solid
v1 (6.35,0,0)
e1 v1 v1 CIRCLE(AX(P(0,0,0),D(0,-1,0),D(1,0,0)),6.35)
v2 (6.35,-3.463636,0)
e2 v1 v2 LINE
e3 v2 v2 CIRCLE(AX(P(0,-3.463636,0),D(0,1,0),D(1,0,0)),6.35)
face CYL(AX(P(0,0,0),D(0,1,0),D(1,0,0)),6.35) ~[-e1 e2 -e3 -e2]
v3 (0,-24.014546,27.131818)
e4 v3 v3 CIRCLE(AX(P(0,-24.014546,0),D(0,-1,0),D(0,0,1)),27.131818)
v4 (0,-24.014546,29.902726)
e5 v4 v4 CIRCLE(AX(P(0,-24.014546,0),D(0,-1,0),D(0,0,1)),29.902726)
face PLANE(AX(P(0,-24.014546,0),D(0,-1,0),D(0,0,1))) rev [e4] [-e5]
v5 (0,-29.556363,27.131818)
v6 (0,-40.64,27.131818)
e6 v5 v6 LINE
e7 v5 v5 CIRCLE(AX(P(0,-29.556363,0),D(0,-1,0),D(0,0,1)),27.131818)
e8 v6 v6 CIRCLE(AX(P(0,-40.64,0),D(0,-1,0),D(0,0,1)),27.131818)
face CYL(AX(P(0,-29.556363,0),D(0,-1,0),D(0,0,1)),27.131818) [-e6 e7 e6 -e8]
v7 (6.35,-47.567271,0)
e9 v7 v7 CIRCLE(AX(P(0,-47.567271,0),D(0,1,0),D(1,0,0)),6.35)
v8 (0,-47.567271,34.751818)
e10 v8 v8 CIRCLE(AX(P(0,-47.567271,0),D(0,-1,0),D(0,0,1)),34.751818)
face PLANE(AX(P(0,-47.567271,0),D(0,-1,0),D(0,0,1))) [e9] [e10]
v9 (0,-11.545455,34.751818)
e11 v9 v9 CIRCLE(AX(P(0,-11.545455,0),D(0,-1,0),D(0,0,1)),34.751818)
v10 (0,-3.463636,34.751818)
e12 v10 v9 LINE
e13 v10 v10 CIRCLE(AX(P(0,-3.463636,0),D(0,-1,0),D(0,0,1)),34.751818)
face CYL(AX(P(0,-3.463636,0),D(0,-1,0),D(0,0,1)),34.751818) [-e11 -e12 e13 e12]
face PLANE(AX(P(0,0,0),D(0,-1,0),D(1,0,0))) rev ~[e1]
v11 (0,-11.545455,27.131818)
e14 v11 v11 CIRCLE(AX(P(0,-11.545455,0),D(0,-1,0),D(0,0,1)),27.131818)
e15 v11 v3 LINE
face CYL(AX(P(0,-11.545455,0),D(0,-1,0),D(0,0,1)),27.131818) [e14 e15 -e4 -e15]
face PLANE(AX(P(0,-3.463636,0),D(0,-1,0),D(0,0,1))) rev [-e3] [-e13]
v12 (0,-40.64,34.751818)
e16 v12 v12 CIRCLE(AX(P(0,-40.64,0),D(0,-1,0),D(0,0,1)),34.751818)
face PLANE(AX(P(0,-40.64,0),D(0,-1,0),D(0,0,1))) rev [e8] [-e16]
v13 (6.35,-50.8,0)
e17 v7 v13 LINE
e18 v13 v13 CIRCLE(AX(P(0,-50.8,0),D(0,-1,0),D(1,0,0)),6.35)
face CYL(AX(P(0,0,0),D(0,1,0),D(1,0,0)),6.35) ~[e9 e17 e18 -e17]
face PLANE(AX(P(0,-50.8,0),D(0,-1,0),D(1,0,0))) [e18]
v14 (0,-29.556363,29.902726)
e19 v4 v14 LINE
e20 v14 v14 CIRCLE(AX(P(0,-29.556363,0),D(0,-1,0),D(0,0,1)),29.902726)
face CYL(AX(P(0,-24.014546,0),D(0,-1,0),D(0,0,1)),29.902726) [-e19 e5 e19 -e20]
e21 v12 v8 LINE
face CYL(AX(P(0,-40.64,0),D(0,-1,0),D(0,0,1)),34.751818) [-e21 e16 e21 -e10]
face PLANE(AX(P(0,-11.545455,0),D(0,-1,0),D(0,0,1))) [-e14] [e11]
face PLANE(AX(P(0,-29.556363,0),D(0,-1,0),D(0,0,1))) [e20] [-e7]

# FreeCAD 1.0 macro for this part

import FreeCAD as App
import Part
import Sketcher
Q = App.Units.Quantity


def add_polygon(sketch, points):
    """Adds a closed chain of lines whose ends are joined by coincident constraints."""
    first, n = sketch.GeometryCount, len(points)
    for a, b in zip(points, points[1:] + points[:1]):
        sketch.addGeometry(Part.LineSegment(App.Vector(*a, 0), App.Vector(*b, 0)), False)
    for i in range(n):
        sketch.addConstraint(Sketcher.Constraint("Coincident", first + i, 2, first + (i + 1) % n, 1))

doc = App.newDocument("Part")
params = doc.addObject("Spreadsheet::Sheet", "Params")
for row, (alias, value) in enumerate([
    ("sketch1_diameter", "0.5 in"),
    ("pad1_length", "2 in"),
    ("sketch2_height", "0.3 in"),
    ("revolution_angle", "360 deg"),
], start=1):
    params.set(f"A{row}", alias)
    params.set(f"B{row}", "=" + value)
    params.setAlias(f"B{row}", alias)

body = doc.addObject("PartDesign::Body", "Body")

sketch1 = body.newObject("Sketcher::SketchObject", "Sketch")
sketch1.AttachmentSupport = (doc.getObject("XZ_Plane"), [""])
sketch1.MapMode = "FlatFace"
sketch1.addGeometry(Part.Circle(App.Vector(0, 0, 0), App.Vector(0, 0, 1), 6), False)
sketch1.addConstraint(Sketcher.Constraint("Coincident", 0, 3, -1, 1))
sketch1.addConstraint(Sketcher.Constraint("Diameter", 0, Q("0.5 in")))
sketch1.setExpression("Constraints[1]", "Params.sketch1_diameter")
pad1 = body.newObject("PartDesign::Pad", "Pad")
pad1.Profile = sketch1
pad1.setExpression("Length", "Params.pad1_length")

sketch2 = body.newObject("Sketcher::SketchObject", "Sketch001")
sketch2.AttachmentSupport = (doc.getObject("YZ_Plane"), [""])
sketch2.MapMode = "FlatFace"
add_polygon(sketch2, [(-3.5, 0), (-3.5, 34.8), (-11.5, 34.8), (-11.5, 27.1), (-24, 27.1), (-24, 29.9), (-29.6, 29.9), (-29.6, 27.1), (-40.6, 27.1), (-40.6, 34.8), (-47.6, 34.8), (-47.6, 0)])
sketch2.addConstraint(Sketcher.Constraint("Vertical", 0))
sketch2.addConstraint(Sketcher.Constraint("Horizontal", 1))
sketch2.addConstraint(Sketcher.Constraint("Vertical", 2))
sketch2.addConstraint(Sketcher.Constraint("Horizontal", 3))
sketch2.addConstraint(Sketcher.Constraint("Vertical", 4))
sketch2.addConstraint(Sketcher.Constraint("Horizontal", 5))
sketch2.addConstraint(Sketcher.Constraint("Vertical", 6))
sketch2.addConstraint(Sketcher.Constraint("Horizontal", 7))
sketch2.addConstraint(Sketcher.Constraint("Vertical", 8))
sketch2.addConstraint(Sketcher.Constraint("Horizontal", 9))
sketch2.addConstraint(Sketcher.Constraint("Vertical", 10))
sketch2.addConstraint(Sketcher.Constraint("Horizontal", 11))
sketch2.addConstraint(Sketcher.Constraint("PointOnObject", 10, 2, -1))
sketch2.addConstraint(Sketcher.Constraint("Horizontal", 3, 2, 6, 2))
sketch2.addConstraint(Sketcher.Constraint("Horizontal", 1, 2, 8, 2))
sketch2.addConstraint(Sketcher.Constraint("DistanceY", 2, 2, 2, 1, Q("0.3 in")))
sketch2.addConstraint(Sketcher.Constraint("DistanceX", 7, 2, -1, 1, Q("1.6 in")))
sketch2.addConstraint(Sketcher.Constraint("DistanceX", 1, 2, 1, 1, Q("8.081819 mm")))
sketch2.addConstraint(Sketcher.Constraint("DistanceX", 3, 2, 3, 1, Q("12.469091 mm")))
sketch2.addConstraint(Sketcher.Constraint("DistanceX", 9, 2, 9, 1, Q("6.927271 mm")))
sketch2.addConstraint(Sketcher.Constraint("DistanceY", 4, 1, 4, 2, Q("2.770908 mm")))
sketch2.addConstraint(Sketcher.Constraint("DistanceX", 5, 2, 5, 1, Q("5.541817 mm")))
sketch2.addConstraint(Sketcher.Constraint("DistanceX", 7, 2, 7, 1, Q("11.083637 mm")))
sketch2.addConstraint(Sketcher.Constraint("DistanceY", 0, 1, 0, 2, Q("34.751818 mm")))
sketch2.setExpression("Constraints[27]", "Params.sketch2_height")
revolution = body.newObject("PartDesign::Revolution", "Revolution")
revolution.Profile = sketch2
revolution.ReferenceAxis = (sketch2, ["H_Axis"])
revolution.setExpression("Angle", "Params.revolution_angle")

doc.recompute()
